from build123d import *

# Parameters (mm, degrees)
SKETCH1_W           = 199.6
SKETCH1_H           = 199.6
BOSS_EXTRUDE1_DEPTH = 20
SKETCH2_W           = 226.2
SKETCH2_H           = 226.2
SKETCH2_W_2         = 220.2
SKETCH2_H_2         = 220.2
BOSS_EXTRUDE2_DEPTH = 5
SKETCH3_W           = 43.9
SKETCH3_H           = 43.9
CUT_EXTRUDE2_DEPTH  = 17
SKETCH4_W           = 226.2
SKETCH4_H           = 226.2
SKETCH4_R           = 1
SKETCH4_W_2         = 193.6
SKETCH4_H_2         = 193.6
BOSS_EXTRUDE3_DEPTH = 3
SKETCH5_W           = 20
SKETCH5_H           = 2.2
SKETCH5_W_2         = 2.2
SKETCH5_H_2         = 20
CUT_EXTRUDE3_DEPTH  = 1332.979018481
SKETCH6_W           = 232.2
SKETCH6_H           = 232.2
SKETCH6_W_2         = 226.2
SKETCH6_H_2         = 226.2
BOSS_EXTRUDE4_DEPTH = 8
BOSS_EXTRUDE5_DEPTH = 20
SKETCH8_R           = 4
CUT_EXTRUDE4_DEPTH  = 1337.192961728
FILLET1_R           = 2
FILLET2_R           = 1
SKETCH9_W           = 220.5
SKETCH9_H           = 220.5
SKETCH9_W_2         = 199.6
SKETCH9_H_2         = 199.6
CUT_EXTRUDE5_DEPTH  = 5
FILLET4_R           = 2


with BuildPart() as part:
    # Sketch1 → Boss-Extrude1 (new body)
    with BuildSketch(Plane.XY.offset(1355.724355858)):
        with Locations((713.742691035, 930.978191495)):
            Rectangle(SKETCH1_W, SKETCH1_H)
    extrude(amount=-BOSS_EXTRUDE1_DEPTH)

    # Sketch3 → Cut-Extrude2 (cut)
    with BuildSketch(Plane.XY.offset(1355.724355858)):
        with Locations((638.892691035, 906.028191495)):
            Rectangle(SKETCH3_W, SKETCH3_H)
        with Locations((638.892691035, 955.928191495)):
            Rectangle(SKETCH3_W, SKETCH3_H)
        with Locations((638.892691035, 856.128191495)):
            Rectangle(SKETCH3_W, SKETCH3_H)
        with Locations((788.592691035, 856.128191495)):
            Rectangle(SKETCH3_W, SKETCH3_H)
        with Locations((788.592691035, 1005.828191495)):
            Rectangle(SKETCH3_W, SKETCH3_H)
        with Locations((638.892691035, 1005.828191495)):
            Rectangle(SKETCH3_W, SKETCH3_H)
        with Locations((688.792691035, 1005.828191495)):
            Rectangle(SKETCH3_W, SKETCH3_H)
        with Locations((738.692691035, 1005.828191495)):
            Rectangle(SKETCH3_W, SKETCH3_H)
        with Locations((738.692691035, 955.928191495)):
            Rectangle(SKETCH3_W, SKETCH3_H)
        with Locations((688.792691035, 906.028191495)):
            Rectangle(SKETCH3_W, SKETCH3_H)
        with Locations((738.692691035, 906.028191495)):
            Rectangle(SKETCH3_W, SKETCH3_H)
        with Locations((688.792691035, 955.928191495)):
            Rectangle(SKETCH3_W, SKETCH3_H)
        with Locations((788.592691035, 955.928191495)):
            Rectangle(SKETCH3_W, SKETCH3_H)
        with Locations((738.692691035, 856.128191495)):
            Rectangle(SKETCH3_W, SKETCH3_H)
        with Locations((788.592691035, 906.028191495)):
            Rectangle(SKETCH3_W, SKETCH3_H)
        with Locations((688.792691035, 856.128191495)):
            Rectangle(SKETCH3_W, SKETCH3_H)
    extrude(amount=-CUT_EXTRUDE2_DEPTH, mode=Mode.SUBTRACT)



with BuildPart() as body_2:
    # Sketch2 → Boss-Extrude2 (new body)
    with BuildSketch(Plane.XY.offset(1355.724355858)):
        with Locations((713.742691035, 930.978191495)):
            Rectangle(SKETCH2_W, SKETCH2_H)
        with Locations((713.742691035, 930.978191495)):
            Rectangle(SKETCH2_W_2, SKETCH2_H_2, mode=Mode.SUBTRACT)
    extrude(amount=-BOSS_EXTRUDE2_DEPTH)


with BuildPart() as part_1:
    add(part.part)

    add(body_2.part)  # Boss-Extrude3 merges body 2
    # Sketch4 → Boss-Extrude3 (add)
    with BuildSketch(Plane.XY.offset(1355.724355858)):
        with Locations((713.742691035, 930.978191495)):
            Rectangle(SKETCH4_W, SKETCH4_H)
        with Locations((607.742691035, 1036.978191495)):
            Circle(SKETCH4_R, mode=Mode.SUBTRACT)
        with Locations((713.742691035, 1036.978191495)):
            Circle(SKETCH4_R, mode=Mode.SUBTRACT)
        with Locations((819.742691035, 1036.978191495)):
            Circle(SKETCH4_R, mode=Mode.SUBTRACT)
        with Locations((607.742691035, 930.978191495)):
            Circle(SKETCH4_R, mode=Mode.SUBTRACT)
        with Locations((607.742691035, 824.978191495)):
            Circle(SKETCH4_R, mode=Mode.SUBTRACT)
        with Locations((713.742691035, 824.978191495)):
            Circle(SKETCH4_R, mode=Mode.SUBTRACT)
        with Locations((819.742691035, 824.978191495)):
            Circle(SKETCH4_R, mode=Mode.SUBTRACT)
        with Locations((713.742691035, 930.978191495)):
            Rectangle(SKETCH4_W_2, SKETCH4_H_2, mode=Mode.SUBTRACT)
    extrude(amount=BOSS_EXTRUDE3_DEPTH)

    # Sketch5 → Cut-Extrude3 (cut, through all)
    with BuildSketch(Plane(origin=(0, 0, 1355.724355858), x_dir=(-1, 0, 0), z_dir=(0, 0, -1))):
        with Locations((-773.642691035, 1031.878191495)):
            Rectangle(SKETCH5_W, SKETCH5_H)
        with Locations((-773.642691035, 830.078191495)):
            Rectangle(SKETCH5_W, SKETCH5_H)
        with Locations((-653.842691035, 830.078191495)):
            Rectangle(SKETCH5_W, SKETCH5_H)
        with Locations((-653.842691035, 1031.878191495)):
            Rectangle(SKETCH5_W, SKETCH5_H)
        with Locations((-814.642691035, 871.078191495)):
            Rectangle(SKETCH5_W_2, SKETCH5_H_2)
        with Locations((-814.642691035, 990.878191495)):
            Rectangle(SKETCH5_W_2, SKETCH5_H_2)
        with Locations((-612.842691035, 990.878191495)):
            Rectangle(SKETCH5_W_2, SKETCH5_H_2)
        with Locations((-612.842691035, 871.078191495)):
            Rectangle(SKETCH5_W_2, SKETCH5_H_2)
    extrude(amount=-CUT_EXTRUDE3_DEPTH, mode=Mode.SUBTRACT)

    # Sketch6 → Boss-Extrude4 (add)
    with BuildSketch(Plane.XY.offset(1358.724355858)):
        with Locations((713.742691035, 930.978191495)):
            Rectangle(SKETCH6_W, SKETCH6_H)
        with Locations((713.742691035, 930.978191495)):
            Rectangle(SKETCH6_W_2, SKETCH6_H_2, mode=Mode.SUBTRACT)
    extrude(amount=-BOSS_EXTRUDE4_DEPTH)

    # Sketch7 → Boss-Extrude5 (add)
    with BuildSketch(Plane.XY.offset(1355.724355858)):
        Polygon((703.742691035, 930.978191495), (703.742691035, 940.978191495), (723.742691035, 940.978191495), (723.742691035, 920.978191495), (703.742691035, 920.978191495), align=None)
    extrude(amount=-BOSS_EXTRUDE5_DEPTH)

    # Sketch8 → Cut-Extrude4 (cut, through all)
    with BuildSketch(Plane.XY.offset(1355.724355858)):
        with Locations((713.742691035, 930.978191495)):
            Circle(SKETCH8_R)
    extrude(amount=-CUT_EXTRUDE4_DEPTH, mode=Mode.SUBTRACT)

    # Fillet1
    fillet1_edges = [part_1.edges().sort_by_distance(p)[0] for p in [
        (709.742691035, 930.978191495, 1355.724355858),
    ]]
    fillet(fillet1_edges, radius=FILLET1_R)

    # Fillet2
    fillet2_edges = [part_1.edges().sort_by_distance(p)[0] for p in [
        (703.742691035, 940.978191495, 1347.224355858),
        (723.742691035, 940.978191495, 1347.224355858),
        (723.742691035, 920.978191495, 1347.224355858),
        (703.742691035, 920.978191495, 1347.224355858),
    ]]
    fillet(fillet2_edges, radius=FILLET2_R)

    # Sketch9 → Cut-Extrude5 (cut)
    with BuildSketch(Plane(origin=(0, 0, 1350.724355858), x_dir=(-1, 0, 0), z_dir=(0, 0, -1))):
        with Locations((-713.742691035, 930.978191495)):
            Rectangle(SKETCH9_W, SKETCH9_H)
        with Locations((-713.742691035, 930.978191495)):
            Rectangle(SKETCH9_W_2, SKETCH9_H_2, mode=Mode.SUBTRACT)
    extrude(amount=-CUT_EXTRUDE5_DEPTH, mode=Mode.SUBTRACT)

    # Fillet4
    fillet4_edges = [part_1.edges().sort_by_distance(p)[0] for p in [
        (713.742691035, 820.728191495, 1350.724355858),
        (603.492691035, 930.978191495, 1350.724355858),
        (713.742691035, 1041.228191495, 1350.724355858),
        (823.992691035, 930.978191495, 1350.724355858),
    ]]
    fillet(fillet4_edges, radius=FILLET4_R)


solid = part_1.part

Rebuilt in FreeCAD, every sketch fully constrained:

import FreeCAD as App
import Part
import Sketcher

V = App.Vector


def edges_at(feature, points):
    """Names of the edges that pass closest to the given points."""
    edges = feature.Shape.Edges
    near = lambda p: min(range(len(edges)), key=lambda i: edges[i].distToShape(Part.Vertex(*p))[0])
    return sorted({f"Edge{near(p) + 1}" for p in points})

doc = App.newDocument("Part")
body = doc.addObject("PartDesign::Body", "Body")

# Sketch on XY plane
sketch1 = doc.addObject("Sketcher::SketchObject", "Sketch")
body.addObject(sketch1)
sketch1.AttachmentSupport = (doc.XY_Plane, [""])
sketch1.MapMode = "FlatFace"
sketch1.AttachmentOffset = App.Placement(V(0, 0, 1355.724356), App.Rotation())
sketch1.addGeometry([
    Part.LineSegment(V(613.942691, 1030.778191, 0), V(613.942691, 831.178191, 0)),
    Part.LineSegment(V(613.942691, 831.178191, 0), V(813.542691, 831.178191, 0)),
    Part.LineSegment(V(813.542691, 831.178191, 0), V(813.542691, 1030.778191, 0)),
    Part.LineSegment(V(813.542691, 1030.778191, 0), V(613.942691, 1030.778191, 0)),
], False)
sketch1.addConstraint([
    Sketcher.Constraint("Coincident", 0, 2, 1, 1),
    Sketcher.Constraint("Coincident", 1, 2, 2, 1),
    Sketcher.Constraint("Coincident", 2, 2, 3, 1),
    Sketcher.Constraint("Coincident", 3, 2, 0, 1),
    Sketcher.Constraint("Vertical", 0),
    Sketcher.Constraint("Horizontal", 1),
    Sketcher.Constraint("Vertical", 2),
    Sketcher.Constraint("Horizontal", 3),
    Sketcher.Constraint("Equal", 3, 0),
    Sketcher.Constraint("DistanceX", 1, 1, 1, 2, 199.6),
    Sketcher.Constraint("DistanceX", -1, 1, 0, 2, 613.942691),
    Sketcher.Constraint("DistanceY", -1, 1, 0, 2, 831.178191),
])
pad1 = doc.addObject("PartDesign::Pad", "Pad")
body.addObject(pad1)
pad1.Profile = sketch1
pad1.Length = 20
pad1.Reversed = True

# Sketch on XY plane
sketch2 = doc.addObject("Sketcher::SketchObject", "Sketch001")
body.addObject(sketch2)
sketch2.AttachmentSupport = (doc.XY_Plane, [""])
sketch2.MapMode = "FlatFace"
sketch2.AttachmentOffset = App.Placement(V(0, 0, 1355.724356), App.Rotation())
sketch2.addGeometry([
    Part.LineSegment(V(616.942691, 927.978191, 0), V(616.942691, 884.078191, 0)),  # 0
    Part.LineSegment(V(616.942691, 884.078191, 0), V(660.842691, 884.078191, 0)),  # 1
    Part.LineSegment(V(660.842691, 884.078191, 0), V(660.842691, 927.978191, 0)),  # 2
    Part.LineSegment(V(660.842691, 927.978191, 0), V(616.942691, 927.978191, 0)),  # 3
    Part.LineSegment(V(616.942691, 977.878191, 0), V(616.942691, 933.978191, 0)),  # 4
    Part.LineSegment(V(616.942691, 933.978191, 0), V(660.842691, 933.978191, 0)),  # 5
    Part.LineSegment(V(660.842691, 933.978191, 0), V(660.842691, 977.878191, 0)),  # 6
    Part.LineSegment(V(660.842691, 977.878191, 0), V(616.942691, 977.878191, 0)),  # 7
    Part.LineSegment(V(616.942691, 878.078191, 0), V(616.942691, 834.178191, 0)),  # 8
    Part.LineSegment(V(616.942691, 834.178191, 0), V(660.842691, 834.178191, 0)),  # 9
    Part.LineSegment(V(660.842691, 834.178191, 0), V(660.842691, 878.078191, 0)),  # 10
    Part.LineSegment(V(660.842691, 878.078191, 0), V(616.942691, 878.078191, 0)),  # 11
    Part.LineSegment(V(766.642691, 878.078191, 0), V(766.642691, 834.178191, 0)),  # 12
    Part.LineSegment(V(766.642691, 834.178191, 0), V(810.542691, 834.178191, 0)),  # 13
    Part.LineSegment(V(810.542691, 834.178191, 0), V(810.542691, 878.078191, 0)),  # 14
    Part.LineSegment(V(810.542691, 878.078191, 0), V(766.642691, 878.078191, 0)),  # 15
    Part.LineSegment(V(766.642691, 1027.778191, 0), V(766.642691, 983.878191, 0)),  # 16
    Part.LineSegment(V(766.642691, 983.878191, 0), V(810.542691, 983.878191, 0)),  # 17
    Part.LineSegment(V(810.542691, 983.878191, 0), V(810.542691, 1027.778191, 0)),  # 18
    Part.LineSegment(V(810.542691, 1027.778191, 0), V(766.642691, 1027.778191, 0)),  # 19
    Part.LineSegment(V(616.942691, 1027.778191, 0), V(616.942691, 983.878191, 0)),  # 20
    Part.LineSegment(V(616.942691, 983.878191, 0), V(660.842691, 983.878191, 0)),  # 21
    Part.LineSegment(V(660.842691, 983.878191, 0), V(660.842691, 1027.778191, 0)),  # 22
    Part.LineSegment(V(660.842691, 1027.778191, 0), V(616.942691, 1027.778191, 0)),  # 23
    Part.LineSegment(V(666.842691, 1027.778191, 0), V(666.842691, 983.878191, 0)),  # 24
    Part.LineSegment(V(666.842691, 983.878191, 0), V(710.742691, 983.878191, 0)),  # 25
    Part.LineSegment(V(710.742691, 983.878191, 0), V(710.742691, 1027.778191, 0)),  # 26
    Part.LineSegment(V(710.742691, 1027.778191, 0), V(666.842691, 1027.778191, 0)),  # 27
    Part.LineSegment(V(716.742691, 1027.778191, 0), V(716.742691, 983.878191, 0)),  # 28
    Part.LineSegment(V(716.742691, 983.878191, 0), V(760.642691, 983.878191, 0)),  # 29
    Part.LineSegment(V(760.642691, 983.878191, 0), V(760.642691, 1027.778191, 0)),  # 30
    Part.LineSegment(V(760.642691, 1027.778191, 0), V(716.742691, 1027.778191, 0)),  # 31
    Part.LineSegment(V(716.742691, 977.878191, 0), V(716.742691, 933.978191, 0)),  # 32
    Part.LineSegment(V(716.742691, 933.978191, 0), V(760.642691, 933.978191, 0)),  # 33
    Part.LineSegment(V(760.642691, 933.978191, 0), V(760.642691, 977.878191, 0)),  # 34
    Part.LineSegment(V(760.642691, 977.878191, 0), V(716.742691, 977.878191, 0)),  # 35
    Part.LineSegment(V(666.842691, 927.978191, 0), V(666.842691, 884.078191, 0)),  # 36
    Part.LineSegment(V(666.842691, 884.078191, 0), V(710.742691, 884.078191, 0)),  # 37
    Part.LineSegment(V(710.742691, 884.078191, 0), V(710.742691, 927.978191, 0)),  # 38
    Part.LineSegment(V(710.742691, 927.978191, 0), V(666.842691, 927.978191, 0)),  # 39
    Part.LineSegment(V(716.742691, 927.978191, 0), V(716.742691, 884.078191, 0)),  # 40
    Part.LineSegment(V(716.742691, 884.078191, 0), V(760.642691, 884.078191, 0)),  # 41
    Part.LineSegment(V(760.642691, 884.078191, 0), V(760.642691, 927.978191, 0)),  # 42
    Part.LineSegment(V(760.642691, 927.978191, 0), V(716.742691, 927.978191, 0)),  # 43
    Part.LineSegment(V(666.842691, 977.878191, 0), V(666.842691, 933.978191, 0)),  # 44
    Part.LineSegment(V(666.842691, 933.978191, 0), V(710.742691, 933.978191, 0)),  # 45
    Part.LineSegment(V(710.742691, 933.978191, 0), V(710.742691, 977.878191, 0)),  # 46
    Part.LineSegment(V(710.742691, 977.878191, 0), V(666.842691, 977.878191, 0)),  # 47
    Part.LineSegment(V(766.642691, 977.878191, 0), V(766.642691, 933.978191, 0)),  # 48
    Part.LineSegment(V(766.642691, 933.978191, 0), V(810.542691, 933.978191, 0)),  # 49
    Part.LineSegment(V(810.542691, 933.978191, 0), V(810.542691, 977.878191, 0)),  # 50
    Part.LineSegment(V(810.542691, 977.878191, 0), V(766.642691, 977.878191, 0)),  # 51
    Part.LineSegment(V(716.742691, 878.078191, 0), V(716.742691, 834.178191, 0)),  # 52
    Part.LineSegment(V(716.742691, 834.178191, 0), V(760.642691, 834.178191, 0)),  # 53
    Part.LineSegment(V(760.642691, 834.178191, 0), V(760.642691, 878.078191, 0)),  # 54
    Part.LineSegment(V(760.642691, 878.078191, 0), V(716.742691, 878.078191, 0)),  # 55
    Part.LineSegment(V(766.642691, 927.978191, 0), V(766.642691, 884.078191, 0)),  # 56
    Part.LineSegment(V(766.642691, 884.078191, 0), V(810.542691, 884.078191, 0)),  # 57
    Part.LineSegment(V(810.542691, 884.078191, 0), V(810.542691, 927.978191, 0)),  # 58
    Part.LineSegment(V(810.542691, 927.978191, 0), V(766.642691, 927.978191, 0)),  # 59
    Part.LineSegment(V(666.842691, 878.078191, 0), V(666.842691, 834.178191, 0)),  # 60
    Part.LineSegment(V(666.842691, 834.178191, 0), V(710.742691, 834.178191, 0)),  # 61
    Part.LineSegment(V(710.742691, 834.178191, 0), V(710.742691, 878.078191, 0)),  # 62
    Part.LineSegment(V(710.742691, 878.078191, 0), V(666.842691, 878.078191, 0)),  # 63
], False)
sketch2.addConstraint([
    Sketcher.Constraint("Coincident", 0, 2, 1, 1),
    Sketcher.Constraint("Coincident", 1, 2, 2, 1),
    Sketcher.Constraint("Coincident", 2, 2, 3, 1),
    Sketcher.Constraint("Coincident", 3, 2, 0, 1),
    Sketcher.Constraint("Coincident", 4, 2, 5, 1),
    Sketcher.Constraint("Coincident", 5, 2, 6, 1),
    Sketcher.Constraint("Coincident", 6, 2, 7, 1),
    Sketcher.Constraint("Coincident", 7, 2, 4, 1),
    Sketcher.Constraint("Coincident", 8, 2, 9, 1),
    Sketcher.Constraint("Coincident", 9, 2, 10, 1),
    Sketcher.Constraint("Coincident", 10, 2, 11, 1),
    Sketcher.Constraint("Coincident", 11, 2, 8, 1),
    Sketcher.Constraint("Coincident", 12, 2, 13, 1),
    Sketcher.Constraint("Coincident", 13, 2, 14, 1),
    Sketcher.Constraint("Coincident", 14, 2, 15, 1),
    Sketcher.Constraint("Coincident", 15, 2, 12, 1),
    Sketcher.Constraint("Coincident", 16, 2, 17, 1),
    Sketcher.Constraint("Coincident", 17, 2, 18, 1),
    Sketcher.Constraint("Coincident", 18, 2, 19, 1),
    Sketcher.Constraint("Coincident", 19, 2, 16, 1),
    Sketcher.Constraint("Coincident", 20, 2, 21, 1),
    Sketcher.Constraint("Coincident", 21, 2, 22, 1),
    Sketcher.Constraint("Coincident", 22, 2, 23, 1),
    Sketcher.Constraint("Coincident", 23, 2, 20, 1),
    Sketcher.Constraint("Coincident", 24, 2, 25, 1),
    Sketcher.Constraint("Coincident", 25, 2, 26, 1),
    Sketcher.Constraint("Coincident", 26, 2, 27, 1),
    Sketcher.Constraint("Coincident", 27, 2, 24, 1),
    Sketcher.Constraint("Coincident", 28, 2, 29, 1),
    Sketcher.Constraint("Coincident", 29, 2, 30, 1),
    Sketcher.Constraint("Coincident", 30, 2, 31, 1),
    Sketcher.Constraint("Coincident", 31, 2, 28, 1),
    Sketcher.Constraint("Coincident", 32, 2, 33, 1),
    Sketcher.Constraint("Coincident", 33, 2, 34, 1),
    Sketcher.Constraint("Coincident", 34, 2, 35, 1),
    Sketcher.Constraint("Coincident", 35, 2, 32, 1),
    Sketcher.Constraint("Coincident", 36, 2, 37, 1),
    Sketcher.Constraint("Coincident", 37, 2, 38, 1),
    Sketcher.Constraint("Coincident", 38, 2, 39, 1),
    Sketcher.Constraint("Coincident", 39, 2, 36, 1),
    Sketcher.Constraint("Coincident", 40, 2, 41, 1),
    Sketcher.Constraint("Coincident", 41, 2, 42, 1),
    Sketcher.Constraint("Coincident", 42, 2, 43, 1),
    Sketcher.Constraint("Coincident", 43, 2, 40, 1),
    Sketcher.Constraint("Coincident", 44, 2, 45, 1),
    Sketcher.Constraint("Coincident", 45, 2, 46, 1),
    Sketcher.Constraint("Coincident", 46, 2, 47, 1),
    Sketcher.Constraint("Coincident", 47, 2, 44, 1),
    Sketcher.Constraint("Coincident", 48, 2, 49, 1),
    Sketcher.Constraint("Coincident", 49, 2, 50, 1),
    Sketcher.Constraint("Coincident", 50, 2, 51, 1),
    Sketcher.Constraint("Coincident", 51, 2, 48, 1),
    Sketcher.Constraint("Coincident", 52, 2, 53, 1),
    Sketcher.Constraint("Coincident", 53, 2, 54, 1),
    Sketcher.Constraint("Coincident", 54, 2, 55, 1),
    Sketcher.Constraint("Coincident", 55, 2, 52, 1),
    Sketcher.Constraint("Coincident", 56, 2, 57, 1),
    Sketcher.Constraint("Coincident", 57, 2, 58, 1),
    Sketcher.Constraint("Coincident", 58, 2, 59, 1),
    Sketcher.Constraint("Coincident", 59, 2, 56, 1),
    Sketcher.Constraint("Coincident", 60, 2, 61, 1),
    Sketcher.Constraint("Coincident", 61, 2, 62, 1),
    Sketcher.Constraint("Coincident", 62, 2, 63, 1),
    Sketcher.Constraint("Coincident", 63, 2, 60, 1),
    Sketcher.Constraint("Vertical", 0),
    Sketcher.Constraint("Horizontal", 1),
    Sketcher.Constraint("Vertical", 2),
    Sketcher.Constraint("Horizontal", 3),
    Sketcher.Constraint("Vertical", 4),
    Sketcher.Constraint("Horizontal", 5),
    Sketcher.Constraint("Vertical", 6),
    Sketcher.Constraint("Horizontal", 7),
    Sketcher.Constraint("Vertical", 8),
    Sketcher.Constraint("Horizontal", 9),
    Sketcher.Constraint("Vertical", 10),
    Sketcher.Constraint("Horizontal", 11),
    Sketcher.Constraint("Vertical", 12),
    Sketcher.Constraint("Horizontal", 13),
    Sketcher.Constraint("Vertical", 14),
    Sketcher.Constraint("Horizontal", 15),
    Sketcher.Constraint("Vertical", 16),
    Sketcher.Constraint("Horizontal", 17),
    Sketcher.Constraint("Vertical", 18),
    Sketcher.Constraint("Horizontal", 19),
    Sketcher.Constraint("Vertical", 20),
    Sketcher.Constraint("Horizontal", 21),
    Sketcher.Constraint("Vertical", 22),
    Sketcher.Constraint("Horizontal", 23),
    Sketcher.Constraint("Vertical", 24),
    Sketcher.Constraint("Horizontal", 25),
    Sketcher.Constraint("Vertical", 26),
    Sketcher.Constraint("Horizontal", 27),
    Sketcher.Constraint("Vertical", 28),
    Sketcher.Constraint("Horizontal", 29),
    Sketcher.Constraint("Vertical", 30),
    Sketcher.Constraint("Horizontal", 31),
    Sketcher.Constraint("Vertical", 32),
    Sketcher.Constraint("Horizontal", 33),
    Sketcher.Constraint("Vertical", 34),
    Sketcher.Constraint("Horizontal", 35),
    Sketcher.Constraint("Vertical", 36),
    Sketcher.Constraint("Horizontal", 37),
    Sketcher.Constraint("Vertical", 38),
    Sketcher.Constraint("Horizontal", 39),
    Sketcher.Constraint("Vertical", 40),
    Sketcher.Constraint("Horizontal", 41),
    Sketcher.Constraint("Vertical", 42),
    Sketcher.Constraint("Horizontal", 43),
    Sketcher.Constraint("Vertical", 44),
    Sketcher.Constraint("Horizontal", 45),
    Sketcher.Constraint("Vertical", 46),
    Sketcher.Constraint("Horizontal", 47),
    Sketcher.Constraint("Vertical", 48),
    Sketcher.Constraint("Horizontal", 49),
    Sketcher.Constraint("Vertical", 50),
    Sketcher.Constraint("Horizontal", 51),
    Sketcher.Constraint("Vertical", 52),
    Sketcher.Constraint("Horizontal", 53),
    Sketcher.Constraint("Vertical", 54),
    Sketcher.Constraint("Horizontal", 55),
    Sketcher.Constraint("Vertical", 56),
    Sketcher.Constraint("Horizontal", 57),
    Sketcher.Constraint("Vertical", 58),
    Sketcher.Constraint("Horizontal", 59),
    Sketcher.Constraint("Vertical", 60),
    Sketcher.Constraint("Horizontal", 61),
    Sketcher.Constraint("Vertical", 62),
    Sketcher.Constraint("Horizontal", 63),
    Sketcher.Constraint("Horizontal", 9, 2, 12, 2),
    Sketcher.Constraint("Horizontal", 11, 2, 14, 2),
    Sketcher.Constraint("Horizontal", 17, 2, 20, 2),
    Sketcher.Constraint("Horizontal", 19, 2, 22, 2),
    Sketcher.Constraint("Horizontal", 21, 2, 24, 2),
    Sketcher.Constraint("Horizontal", 23, 2, 26, 2),
    Sketcher.Constraint("Horizontal", 25, 2, 28, 2),
    Sketcher.Constraint("Horizontal", 27, 2, 30, 2),
    Sketcher.Constraint("Horizontal", 5, 2, 32, 2),
    Sketcher.Constraint("Horizontal", 7, 2, 34, 2),
    Sketcher.Constraint("Horizontal", 1, 2, 36, 2),
    Sketcher.Constraint("Horizontal", 3, 2, 38, 2),
    Sketcher.Constraint("Horizontal", 37, 2, 40, 2),
    Sketcher.Constraint("Horizontal", 39, 2, 42, 2),
    Sketcher.Constraint("Horizontal", 33, 2, 44, 2),
    Sketcher.Constraint("Horizontal", 35, 2, 46, 2),
    Sketcher.Constraint("Horizontal", 45, 2, 48, 2),
    Sketcher.Constraint("Horizontal", 47, 2, 50, 2),
    Sketcher.Constraint("Horizontal", 13, 2, 52, 2),
    Sketcher.Constraint("Horizontal", 15, 2, 54, 2),
    Sketcher.Constraint("Horizontal", 41, 2, 56, 2),
    Sketcher.Constraint("Horizontal", 43, 2, 58, 2),
    Sketcher.Constraint("Horizontal", 53, 2, 60, 2),
    Sketcher.Constraint("Horizontal", 55, 2, 62, 2),
    Sketcher.Constraint("Vertical", 3, 2, 4, 2),
    Sketcher.Constraint("Vertical", 2, 2, 5, 2),
    Sketcher.Constraint("Vertical", 7, 2, 8, 2),
    Sketcher.Constraint("Vertical", 6, 2, 9, 2),
    Sketcher.Constraint("Vertical", 15, 2, 16, 2),
    Sketcher.Constraint("Vertical", 14, 2, 17, 2),
    Sketcher.Constraint("Vertical", 11, 2, 20, 2),
    Sketcher.Constraint("Vertical", 10, 2, 21, 2),
    Sketcher.Constraint("Vertical", 31, 2, 32, 2),
    Sketcher.Constraint("Vertical", 30, 2, 33, 2),
    Sketcher.Constraint("Vertical", 27, 2, 36, 2),
    Sketcher.Constraint("Vertical", 26, 2, 37, 2),
    Sketcher.Constraint("Vertical", 35, 2, 40, 2),
    Sketcher.Constraint("Vertical", 34, 2, 41, 2),
    Sketcher.Constraint("Vertical", 39, 2, 44, 2),
    Sketcher.Constraint("Vertical", 38, 2, 45, 2),
    Sketcher.Constraint("Vertical", 19, 2, 48, 2),
    Sketcher.Constraint("Vertical", 18, 2, 49, 2),
    Sketcher.Constraint("Vertical", 43, 2, 52, 2),
    Sketcher.Constraint("Vertical", 42, 2, 53, 2),
    Sketcher.Constraint("Vertical", 51, 2, 56, 2),
    Sketcher.Constraint("Vertical", 50, 2, 57, 2),
    Sketcher.Constraint("Vertical", 47, 2, 60, 2),
    Sketcher.Constraint("Vertical", 46, 2, 61, 2),
    Sketcher.Constraint("Equal", 11, 13),
    Sketcher.Constraint("Equal", 23, 25),
    Sketcher.Constraint("Equal", 27, 29),
    Sketcher.Constraint("Equal", 63, 0),
    Sketcher.Constraint("Equal", 2, 4),
    Sketcher.Constraint("Equal", 6, 8),
    Sketcher.Constraint("Equal", 14, 16),
    Sketcher.Constraint("DistanceX", 1, 1, 1, 2, 43.9),
    Sketcher.Constraint("DistanceX", -1, 1, 0, 2, 616.942691),
    Sketcher.Constraint("DistanceY", -1, 1, 0, 2, 884.078191),
    Sketcher.Constraint("DistanceY", -1, 1, 4, 2, 933.978191),
    Sketcher.Constraint("DistanceY", -1, 1, 8, 2, 834.178191),
    Sketcher.Constraint("DistanceX", -1, 1, 12, 2, 766.642691),
    Sketcher.Constraint("DistanceY", -1, 1, 16, 2, 983.878191),
    Sketcher.Constraint("DistanceX", -1, 1, 24, 2, 666.842691),
    Sketcher.Constraint("DistanceX", -1, 1, 28, 2, 716.742691),
])
pocket1 = doc.addObject("PartDesign::Pocket", "Pocket")
body.addObject(pocket1)
pocket1.Profile = sketch2
pocket1.Length = 17
body2 = doc.addObject("PartDesign::Body", "Body001")

# Sketch on XY plane
sketch3 = doc.addObject("Sketcher::SketchObject", "Sketch002")
body2.addObject(sketch3)
sketch3.AttachmentSupport = (doc.getObject("XY_Plane001"), [""])
sketch3.MapMode = "FlatFace"
sketch3.AttachmentOffset = App.Placement(V(0, 0, 1355.724356), App.Rotation())
sketch3.addGeometry([
    Part.LineSegment(V(600.642691, 1044.078191, 0), V(600.642691, 817.878191, 0)),  # 0
    Part.LineSegment(V(600.642691, 817.878191, 0), V(826.842691, 817.878191, 0)),  # 1
    Part.LineSegment(V(826.842691, 817.878191, 0), V(826.842691, 1044.078191, 0)),  # 2
    Part.LineSegment(V(826.842691, 1044.078191, 0), V(600.642691, 1044.078191, 0)),  # 3
    Part.LineSegment(V(823.842691, 820.878191, 0), V(603.642691, 820.878191, 0)),  # 4
    Part.LineSegment(V(603.642691, 820.878191, 0), V(603.642691, 1041.078191, 0)),  # 5
    Part.LineSegment(V(603.642691, 1041.078191, 0), V(823.842691, 1041.078191, 0)),  # 6
    Part.LineSegment(V(823.842691, 1041.078191, 0), V(823.842691, 820.878191, 0)),  # 7
], False)
sketch3.addConstraint([
    Sketcher.Constraint("Coincident", 0, 2, 1, 1),
    Sketcher.Constraint("Coincident", 1, 2, 2, 1),
    Sketcher.Constraint("Coincident", 2, 2, 3, 1),
    Sketcher.Constraint("Coincident", 3, 2, 0, 1),
    Sketcher.Constraint("Coincident", 4, 2, 5, 1),
    Sketcher.Constraint("Coincident", 5, 2, 6, 1),
    Sketcher.Constraint("Coincident", 6, 2, 7, 1),
    Sketcher.Constraint("Coincident", 7, 2, 4, 1),
    Sketcher.Constraint("Vertical", 0),
    Sketcher.Constraint("Horizontal", 1),
    Sketcher.Constraint("Vertical", 2),
    Sketcher.Constraint("Horizontal", 3),
    Sketcher.Constraint("Horizontal", 4),
    Sketcher.Constraint("Vertical", 5),
    Sketcher.Constraint("Horizontal", 6),
    Sketcher.Constraint("Vertical", 7),
    Sketcher.Constraint("Equal", 3, 0),
    Sketcher.Constraint("Equal", 6, 5),
    Sketcher.Constraint("DistanceX", 1, 1, 1, 2, 226.2),
    Sketcher.Constraint("DistanceX", 4, 2, 4, 1, 220.2),
    Sketcher.Constraint("DistanceX", 0, 2, 4, 2, 3.0),
    Sketcher.Constraint("DistanceY", 0, 2, 4, 2, 3.0),
    Sketcher.Constraint("DistanceX", -1, 1, 0, 2, 600.642691),
    Sketcher.Constraint("DistanceY", -1, 1, 0, 2, 817.878191),
])
pad2 = doc.addObject("PartDesign::Pad", "Pad001")
body2.addObject(pad2)
pad2.Profile = sketch3
pad2.Length = 5
pad2.Reversed = True
body.AllowCompound = True
doc.recompute()

boolean = doc.addObject("PartDesign::Boolean", "Boolean")
body.addObject(boolean)
boolean.Type = "Fuse"
boolean.addObjects([body2])

# Sketch on XY plane
sketch4 = doc.addObject("Sketcher::SketchObject", "Sketch003")
body.addObject(sketch4)
sketch4.AttachmentSupport = (doc.XY_Plane, [""])
sketch4.MapMode = "FlatFace"
sketch4.AttachmentOffset = App.Placement(V(0, 0, 1355.724356), App.Rotation())
sketch4.addGeometry([
    Part.LineSegment(V(600.642691, 1044.078191, 0), V(600.642691, 817.878191, 0)),  # 0
    Part.LineSegment(V(600.642691, 817.878191, 0), V(826.842691, 817.878191, 0)),  # 1
    Part.LineSegment(V(826.842691, 817.878191, 0), V(826.842691, 1044.078191, 0)),  # 2
    Part.LineSegment(V(826.842691, 1044.078191, 0), V(600.642691, 1044.078191, 0)),  # 3
    Part.Circle(V(607.742691, 824.978191, 0), V(0, 0, 1), 1),  # 4
    Part.Circle(V(713.742691, 824.978191, 0), V(0, 0, 1), 1),  # 5
    Part.Circle(V(819.742691, 824.978191, 0), V(0, 0, 1), 1),  # 6
    Part.Circle(V(607.742691, 930.978191, 0), V(0, 0, 1), 1),  # 7
    Part.LineSegment(V(810.542691, 834.178191, 0), V(616.942691, 834.178191, 0)),  # 8
    Part.LineSegment(V(616.942691, 834.178191, 0), V(616.942691, 1027.778191, 0)),  # 9
    Part.LineSegment(V(616.942691, 1027.778191, 0), V(810.542691, 1027.778191, 0)),  # 10
    Part.LineSegment(V(810.542691, 1027.778191, 0), V(810.542691, 834.178191, 0)),  # 11
    Part.Circle(V(607.742691, 1036.978191, 0), V(0, 0, 1), 1),  # 12
    Part.Circle(V(713.742691, 1036.978191, 0), V(0, 0, 1), 1),  # 13
    Part.Circle(V(819.742691, 1036.978191, 0), V(0, 0, 1), 1),  # 14
], False)
sketch4.addConstraint([
    Sketcher.Constraint("Coincident", 0, 2, 1, 1),
    Sketcher.Constraint("Coincident", 1, 2, 2, 1),
    Sketcher.Constraint("Coincident", 2, 2, 3, 1),
    Sketcher.Constraint("Coincident", 3, 2, 0, 1),
    Sketcher.Constraint("Coincident", 8, 2, 9, 1),
    Sketcher.Constraint("Coincident", 9, 2, 10, 1),
    Sketcher.Constraint("Coincident", 10, 2, 11, 1),
    Sketcher.Constraint("Coincident", 11, 2, 8, 1),
    Sketcher.Constraint("Vertical", 0),
    Sketcher.Constraint("Horizontal", 1),
    Sketcher.Constraint("Vertical", 2),
    Sketcher.Constraint("Horizontal", 3),
    Sketcher.Constraint("Horizontal", 8),
    Sketcher.Constraint("Vertical", 9),
    Sketcher.Constraint("Horizontal", 10),
    Sketcher.Constraint("Vertical", 11),
    Sketcher.Constraint("Equal", 4, 5),
    Sketcher.Constraint("Equal", 5, 6),
    Sketcher.Constraint("Equal", 6, 7),
    Sketcher.Constraint("Equal", 7, 12),
    Sketcher.Constraint("Equal", 12, 13),
    Sketcher.Constraint("Equal", 13, 14),
    Sketcher.Constraint("Horizontal", 4, 3, 5, 3),
    Sketcher.Constraint("Horizontal", 5, 3, 6, 3),
    Sketcher.Constraint("Horizontal", 12, 3, 13, 3),
    Sketcher.Constraint("Horizontal", 13, 3, 14, 3),
    Sketcher.Constraint("Vertical", 4, 3, 7, 3),
    Sketcher.Constraint("Vertical", 7, 3, 12, 3),
    Sketcher.Constraint("Vertical", 5, 3, 13, 3),
    Sketcher.Constraint("Vertical", 6, 3, 14, 3),
    Sketcher.Constraint("Equal", 3, 0),
    Sketcher.Constraint("Equal", 10, 9),
    Sketcher.Constraint("Diameter", 4, 2.0),
    Sketcher.Constraint("DistanceX", 1, 1, 1, 2, 226.2),
    Sketcher.Constraint("DistanceX", 8, 2, 8, 1, 193.6),
    Sketcher.Constraint("DistanceX", 4, 3, 5, 3, 106.0),
    Sketcher.Constraint("DistanceX", 5, 3, 6, 3, 106.0),
    Sketcher.Constraint("DistanceY", 4, 3, 7, 3, 106.0),
    Sketcher.Constraint("DistanceY", 7, 3, 12, 3, 106.0),
    Sketcher.Constraint("DistanceX", 0, 2, 4, 3, 7.1),
    Sketcher.Constraint("DistanceY", 0, 2, 4, 3, 7.1),
    Sketcher.Constraint("DistanceX", 4, 3, 8, 2, 9.2),
    Sketcher.Constraint("DistanceY", 4, 3, 8, 2, 9.2),
    Sketcher.Constraint("DistanceX", -1, 1, 4, 3, 607.742691),
    Sketcher.Constraint("DistanceY", -1, 1, 4, 3, 824.978191),
])
pad3 = doc.addObject("PartDesign::Pad", "Pad002")
body.addObject(pad3)
pad3.Profile = sketch4
pad3.Length = 3

# Sketch on XY plane
sketch5 = doc.addObject("Sketcher::SketchObject", "Sketch004")
body.addObject(sketch5)
sketch5.AttachmentSupport = (doc.XY_Plane, [""])
sketch5.MapMode = "FlatFace"
sketch5.AttachmentOffset = App.Placement(V(0, 0, 1355.724356), App.Rotation())
sketch5.addGeometry([
    Part.LineSegment(V(783.642691, 1032.978191, 0), V(783.642691, 1030.778191, 0)),  # 0
    Part.LineSegment(V(783.642691, 1030.778191, 0), V(763.642691, 1030.778191, 0)),  # 1
    Part.LineSegment(V(763.642691, 1030.778191, 0), V(763.642691, 1032.978191, 0)),  # 2
    Part.LineSegment(V(763.642691, 1032.978191, 0), V(783.642691, 1032.978191, 0)),  # 3
    Part.LineSegment(V(783.642691, 831.178191, 0), V(783.642691, 828.978191, 0)),  # 4
    Part.LineSegment(V(783.642691, 828.978191, 0), V(763.642691, 828.978191, 0)),  # 5
    Part.LineSegment(V(763.642691, 828.978191, 0), V(763.642691, 831.178191, 0)),  # 6
    Part.LineSegment(V(763.642691, 831.178191, 0), V(783.642691, 831.178191, 0)),  # 7
    Part.LineSegment(V(663.842691, 831.178191, 0), V(663.842691, 828.978191, 0)),  # 8
    Part.LineSegment(V(663.842691, 828.978191, 0), V(643.842691, 828.978191, 0)),  # 9
    Part.LineSegment(V(643.842691, 828.978191, 0), V(643.842691, 831.178191, 0)),  # 10
    Part.LineSegment(V(643.842691, 831.178191, 0), V(663.842691, 831.178191, 0)),  # 11
    Part.LineSegment(V(663.842691, 1032.978191, 0), V(663.842691, 1030.778191, 0)),  # 12
    Part.LineSegment(V(663.842691, 1030.778191, 0), V(643.842691, 1030.778191, 0)),  # 13
    Part.LineSegment(V(643.842691, 1030.778191, 0), V(643.842691, 1032.978191, 0)),  # 14
    Part.LineSegment(V(643.842691, 1032.978191, 0), V(663.842691, 1032.978191, 0)),  # 15
    Part.LineSegment(V(815.742691, 881.078191, 0), V(815.742691, 861.078191, 0)),  # 16
    Part.LineSegment(V(815.742691, 861.078191, 0), V(813.542691, 861.078191, 0)),  # 17
    Part.LineSegment(V(813.542691, 861.078191, 0), V(813.542691, 881.078191, 0)),  # 18
    Part.LineSegment(V(813.542691, 881.078191, 0), V(815.742691, 881.078191, 0)),  # 19
    Part.LineSegment(V(815.742691, 1000.878191, 0), V(815.742691, 980.878191, 0)),  # 20
    Part.LineSegment(V(815.742691, 980.878191, 0), V(813.542691, 980.878191, 0)),  # 21
    Part.LineSegment(V(813.542691, 980.878191, 0), V(813.542691, 1000.878191, 0)),  # 22
    Part.LineSegment(V(813.542691, 1000.878191, 0), V(815.742691, 1000.878191, 0)),  # 23
    Part.LineSegment(V(613.942691, 1000.878191, 0), V(613.942691, 980.878191, 0)),  # 24
    Part.LineSegment(V(613.942691, 980.878191, 0), V(611.742691, 980.878191, 0)),  # 25
    Part.LineSegment(V(611.742691, 980.878191, 0), V(611.742691, 1000.878191, 0)),  # 26
    Part.LineSegment(V(611.742691, 1000.878191, 0), V(613.942691, 1000.878191, 0)),  # 27
    Part.LineSegment(V(613.942691, 881.078191, 0), V(613.942691, 861.078191, 0)),  # 28
    Part.LineSegment(V(613.942691, 861.078191, 0), V(611.742691, 861.078191, 0)),  # 29
    Part.LineSegment(V(611.742691, 861.078191, 0), V(611.742691, 881.078191, 0)),  # 30
    Part.LineSegment(V(611.742691, 881.078191, 0), V(613.942691, 881.078191, 0)),  # 31
], False)
sketch5.addConstraint([
    Sketcher.Constraint("Coincident", 0, 2, 1, 1),
    Sketcher.Constraint("Coincident", 1, 2, 2, 1),
    Sketcher.Constraint("Coincident", 2, 2, 3, 1),
    Sketcher.Constraint("Coincident", 3, 2, 0, 1),
    Sketcher.Constraint("Coincident", 4, 2, 5, 1),
    Sketcher.Constraint("Coincident", 5, 2, 6, 1),
    Sketcher.Constraint("Coincident", 6, 2, 7, 1),
    Sketcher.Constraint("Coincident", 7, 2, 4, 1),
    Sketcher.Constraint("Coincident", 8, 2, 9, 1),
    Sketcher.Constraint("Coincident", 9, 2, 10, 1),
    Sketcher.Constraint("Coincident", 10, 2, 11, 1),
    Sketcher.Constraint("Coincident", 11, 2, 8, 1),
    Sketcher.Constraint("Coincident", 12, 2, 13, 1),
    Sketcher.Constraint("Coincident", 13, 2, 14, 1),
    Sketcher.Constraint("Coincident", 14, 2, 15, 1),
    Sketcher.Constraint("Coincident", 15, 2, 12, 1),
    Sketcher.Constraint("Coincident", 16, 2, 17, 1),
    Sketcher.Constraint("Coincident", 17, 2, 18, 1),
    Sketcher.Constraint("Coincident", 18, 2, 19, 1),
    Sketcher.Constraint("Coincident", 19, 2, 16, 1),
    Sketcher.Constraint("Coincident", 20, 2, 21, 1),
    Sketcher.Constraint("Coincident", 21, 2, 22, 1),
    Sketcher.Constraint("Coincident", 22, 2, 23, 1),
    Sketcher.Constraint("Coincident", 23, 2, 20, 1),
    Sketcher.Constraint("Coincident", 24, 2, 25, 1),
    Sketcher.Constraint("Coincident", 25, 2, 26, 1),
    Sketcher.Constraint("Coincident", 26, 2, 27, 1),
    Sketcher.Constraint("Coincident", 27, 2, 24, 1),
    Sketcher.Constraint("Coincident", 28, 2, 29, 1),
    Sketcher.Constraint("Coincident", 29, 2, 30, 1),
    Sketcher.Constraint("Coincident", 30, 2, 31, 1),
    Sketcher.Constraint("Coincident", 31, 2, 28, 1),
    Sketcher.Constraint("Vertical", 0),
    Sketcher.Constraint("Horizontal", 1),
    Sketcher.Constraint("Vertical", 2),
    Sketcher.Constraint("Horizontal", 3),
    Sketcher.Constraint("Vertical", 4),
    Sketcher.Constraint("Horizontal", 5),
    Sketcher.Constraint("Vertical", 6),
    Sketcher.Constraint("Horizontal", 7),
    Sketcher.Constraint("Vertical", 8),
    Sketcher.Constraint("Horizontal", 9),
    Sketcher.Constraint("Vertical", 10),
    Sketcher.Constraint("Horizontal", 11),
    Sketcher.Constraint("Vertical", 12),
    Sketcher.Constraint("Horizontal", 13),
    Sketcher.Constraint("Vertical", 14),
    Sketcher.Constraint("Horizontal", 15),
    Sketcher.Constraint("Vertical", 16),
    Sketcher.Constraint("Horizontal", 17),
    Sketcher.Constraint("Vertical", 18),
    Sketcher.Constraint("Horizontal", 19),
    Sketcher.Constraint("Vertical", 20),
    Sketcher.Constraint("Horizontal", 21),
    Sketcher.Constraint("Vertical", 22),
    Sketcher.Constraint("Horizontal", 23),
    Sketcher.Constraint("Vertical", 24),
    Sketcher.Constraint("Horizontal", 25),
    Sketcher.Constraint("Vertical", 26),
    Sketcher.Constraint("Horizontal", 27),
    Sketcher.Constraint("Vertical", 28),
    Sketcher.Constraint("Horizontal", 29),
    Sketcher.Constraint("Vertical", 30),
    Sketcher.Constraint("Horizontal", 31),
    Sketcher.Constraint("Horizontal", 5, 2, 8, 2),
    Sketcher.Constraint("Horizontal", 7, 2, 10, 2),
    Sketcher.Constraint("Horizontal", 1, 2, 12, 2),
    Sketcher.Constraint("Horizontal", 3, 2, 14, 2),
    Sketcher.Constraint("Horizontal", 21, 2, 24, 2),
    Sketcher.Constraint("Horizontal", 23, 2, 26, 2),
    Sketcher.Constraint("Horizontal", 17, 2, 28, 2),
    Sketcher.Constraint("Horizontal", 19, 2, 30, 2),
    Sketcher.Constraint("Vertical", 3, 2, 4, 2),
    Sketcher.Constraint("Vertical", 2, 2, 5, 2),
    Sketcher.Constraint("Vertical", 11, 2, 12, 2),
    Sketcher.Constraint("Vertical", 10, 2, 13, 2),
    Sketcher.Constraint("Vertical", 19, 2, 20, 2),
    Sketcher.Constraint("Vertical", 18, 2, 21, 2),
    Sketcher.Constraint("Vertical", 27, 2, 28, 2),
    Sketcher.Constraint("Vertical", 26, 2, 29, 2),
    Sketcher.Constraint("Equal", 7, 9),
    Sketcher.Constraint("Equal", 23, 25),
    Sketcher.Constraint("Equal", 31, 0),
    Sketcher.Constraint("Equal", 2, 4),
    Sketcher.Constraint("Equal", 15, 16),
    Sketcher.Constraint("Equal", 18, 20),
    Sketcher.Constraint("DistanceX", 1, 2, 1, 1, 20.0),
    Sketcher.Constraint("DistanceX", 17, 2, 17, 1, 2.2),
    Sketcher.Constraint("DistanceY", 4, 2, 3, 2, 204.0),
    Sketcher.Constraint("DistanceX", 8, 2, 5, 2, 99.8),
    Sketcher.Constraint("DistanceX", 7, 2, 16, 2, 32.1),
    Sketcher.Constraint("DistanceY", 7, 2, 16, 2, 29.9),
    Sketcher.Constraint("DistanceY", 20, 2, 0, 2, 49.9),
    Sketcher.Constraint("DistanceX", 24, 2, 13, 2, 29.9),
    Sketcher.Constraint("DistanceX", -1, 1, 0, 2, 783.642691),
    Sketcher.Constraint("DistanceY", -1, 1, 0, 2, 1030.778191),
])
pocket2 = doc.addObject("PartDesign::Pocket", "Pocket001")
body.addObject(pocket2)
pocket2.Profile = sketch5
pocket2.Type = "ThroughAll"
pocket2.Reversed = True

# Sketch on XY plane
sketch6 = doc.addObject("Sketcher::SketchObject", "Sketch005")
body.addObject(sketch6)
sketch6.AttachmentSupport = (doc.XY_Plane, [""])
sketch6.MapMode = "FlatFace"
sketch6.AttachmentOffset = App.Placement(V(0, 0, 1358.724356), App.Rotation())
sketch6.addGeometry([
    Part.LineSegment(V(597.642691, 1047.078191, 0), V(597.642691, 814.878191, 0)),  # 0
    Part.LineSegment(V(597.642691, 814.878191, 0), V(829.842691, 814.878191, 0)),  # 1
    Part.LineSegment(V(829.842691, 814.878191, 0), V(829.842691, 1047.078191, 0)),  # 2
    Part.LineSegment(V(829.842691, 1047.078191, 0), V(597.642691, 1047.078191, 0)),  # 3
    Part.LineSegment(V(826.842691, 817.878191, 0), V(600.642691, 817.878191, 0)),  # 4
    Part.LineSegment(V(600.642691, 817.878191, 0), V(600.642691, 1044.078191, 0)),  # 5
    Part.LineSegment(V(600.642691, 1044.078191, 0), V(826.842691, 1044.078191, 0)),  # 6
    Part.LineSegment(V(826.842691, 1044.078191, 0), V(826.842691, 817.878191, 0)),  # 7
], False)
sketch6.addConstraint([
    Sketcher.Constraint("Coincident", 0, 2, 1, 1),
    Sketcher.Constraint("Coincident", 1, 2, 2, 1),
    Sketcher.Constraint("Coincident", 2, 2, 3, 1),
    Sketcher.Constraint("Coincident", 3, 2, 0, 1),
    Sketcher.Constraint("Coincident", 4, 2, 5, 1),
    Sketcher.Constraint("Coincident", 5, 2, 6, 1),
    Sketcher.Constraint("Coincident", 6, 2, 7, 1),
    Sketcher.Constraint("Coincident", 7, 2, 4, 1),
    Sketcher.Constraint("Vertical", 0),
    Sketcher.Constraint("Horizontal", 1),
    Sketcher.Constraint("Vertical", 2),
    Sketcher.Constraint("Horizontal", 3),
    Sketcher.Constraint("Horizontal", 4),
    Sketcher.Constraint("Vertical", 5),
    Sketcher.Constraint("Horizontal", 6),
    Sketcher.Constraint("Vertical", 7),
    Sketcher.Constraint("Equal", 3, 0),
    Sketcher.Constraint("Equal", 6, 5),
    Sketcher.Constraint("DistanceX", 1, 1, 1, 2, 232.2),
    Sketcher.Constraint("DistanceX", 4, 2, 4, 1, 226.2),
    Sketcher.Constraint("DistanceX", 0, 2, 4, 2, 3.0),
    Sketcher.Constraint("DistanceY", 0, 2, 4, 2, 3.0),
    Sketcher.Constraint("DistanceX", -1, 1, 0, 2, 597.642691),
    Sketcher.Constraint("DistanceY", -1, 1, 0, 2, 814.878191),
])
pad4 = doc.addObject("PartDesign::Pad", "Pad003")
body.addObject(pad4)
pad4.Profile = sketch6
pad4.Length = 8
pad4.Reversed = True

# Sketch on XY plane
sketch7 = doc.addObject("Sketcher::SketchObject", "Sketch006")
body.addObject(sketch7)
sketch7.AttachmentSupport = (doc.XY_Plane, [""])
sketch7.MapMode = "FlatFace"
sketch7.AttachmentOffset = App.Placement(V(0, 0, 1355.724356), App.Rotation())
sketch7.addGeometry([
    Part.LineSegment(V(703.742691, 940.978191, 0), V(703.742691, 920.978191, 0)),
    Part.LineSegment(V(703.742691, 920.978191, 0), V(723.742691, 920.978191, 0)),
    Part.LineSegment(V(723.742691, 920.978191, 0), V(723.742691, 940.978191, 0)),
    Part.LineSegment(V(723.742691, 940.978191, 0), V(703.742691, 940.978191, 0)),
], False)
sketch7.addConstraint([
    Sketcher.Constraint("Coincident", 0, 2, 1, 1),
    Sketcher.Constraint("Coincident", 1, 2, 2, 1),
    Sketcher.Constraint("Coincident", 2, 2, 3, 1),
    Sketcher.Constraint("Coincident", 3, 2, 0, 1),
    Sketcher.Constraint("Vertical", 0),
    Sketcher.Constraint("Horizontal", 1),
    Sketcher.Constraint("Vertical", 2),
    Sketcher.Constraint("Horizontal", 3),
    Sketcher.Constraint("Equal", 3, 0),
    Sketcher.Constraint("DistanceX", 1, 1, 1, 2, 20.0),
    Sketcher.Constraint("DistanceX", -1, 1, 0, 2, 703.742691),
    Sketcher.Constraint("DistanceY", -1, 1, 0, 2, 920.978191),
])
pad5 = doc.addObject("PartDesign::Pad", "Pad004")
body.addObject(pad5)
pad5.Profile = sketch7
pad5.Length = 20
pad5.Reversed = True

# Sketch on XY plane
sketch8 = doc.addObject("Sketcher::SketchObject", "Sketch007")
body.addObject(sketch8)
sketch8.AttachmentSupport = (doc.XY_Plane, [""])
sketch8.MapMode = "FlatFace"
sketch8.AttachmentOffset = App.Placement(V(0, 0, 1355.724356), App.Rotation())
sketch8.addGeometry(Part.Circle(V(713.742691, 930.978191, 0), V(0, 0, 1), 4), False)
sketch8.addConstraint([
    Sketcher.Constraint("Diameter", 0, 8.0),
    Sketcher.Constraint("DistanceX", -1, 1, 0, 3, 713.742691),
    Sketcher.Constraint("DistanceY", -1, 1, 0, 3, 930.978191),
])
pocket3 = doc.addObject("PartDesign::Pocket", "Pocket002")
body.addObject(pocket3)
pocket3.Profile = sketch8
pocket3.Type = "ThroughAll"
doc.recompute()

fillet = doc.addObject("PartDesign::Fillet", "Fillet")
body.addObject(fillet)
fillet.Base = (pocket3, edges_at(pocket3, [(709.743, 930.978, 1355.724)]))
fillet.Radius = 2
doc.recompute()

fillet2 = doc.addObject("PartDesign::Fillet", "Fillet001")
body.addObject(fillet2)
fillet2.Base = (fillet, edges_at(fillet, [
    (703.743, 940.978, 1347.224),
    (723.743, 940.978, 1347.224),
    (723.743, 920.978, 1347.224),
    (703.743, 920.978, 1347.224),
]))
fillet2.Radius = 1

# Sketch on XY plane
sketch9 = doc.addObject("Sketcher::SketchObject", "Sketch008")
body.addObject(sketch9)
sketch9.AttachmentSupport = (doc.XY_Plane, [""])
sketch9.MapMode = "FlatFace"
sketch9.AttachmentOffset = App.Placement(V(0, 0, 1350.724356), App.Rotation())
sketch9.addGeometry([
    Part.LineSegment(V(823.992691, 1041.228191, 0), V(823.992691, 820.728191, 0)),  # 0
    Part.LineSegment(V(823.992691, 820.728191, 0), V(603.492691, 820.728191, 0)),  # 1
    Part.LineSegment(V(603.492691, 820.728191, 0), V(603.492691, 1041.228191, 0)),  # 2
    Part.LineSegment(V(603.492691, 1041.228191, 0), V(823.992691, 1041.228191, 0)),  # 3
    Part.LineSegment(V(613.942691, 831.178191, 0), V(813.542691, 831.178191, 0)),  # 4
    Part.LineSegment(V(813.542691, 831.178191, 0), V(813.542691, 1030.778191, 0)),  # 5
    Part.LineSegment(V(813.542691, 1030.778191, 0), V(613.942691, 1030.778191, 0)),  # 6
    Part.LineSegment(V(613.942691, 1030.778191, 0), V(613.942691, 831.178191, 0)),  # 7
], False)
sketch9.addConstraint([
    Sketcher.Constraint("Coincident", 0, 2, 1, 1),
    Sketcher.Constraint("Coincident", 1, 2, 2, 1),
    Sketcher.Constraint("Coincident", 2, 2, 3, 1),
    Sketcher.Constraint("Coincident", 3, 2, 0, 1),
    Sketcher.Constraint("Coincident", 4, 2, 5, 1),
    Sketcher.Constraint("Coincident", 5, 2, 6, 1),
    Sketcher.Constraint("Coincident", 6, 2, 7, 1),
    Sketcher.Constraint("Coincident", 7, 2, 4, 1),
    Sketcher.Constraint("Vertical", 0),
    Sketcher.Constraint("Horizontal", 1),
    Sketcher.Constraint("Vertical", 2),
    Sketcher.Constraint("Horizontal", 3),
    Sketcher.Constraint("Horizontal", 4),
    Sketcher.Constraint("Vertical", 5),
    Sketcher.Constraint("Horizontal", 6),
    Sketcher.Constraint("Vertical", 7),
    Sketcher.Constraint("Equal", 3, 0),
    Sketcher.Constraint("Equal", 6, 5),
    Sketcher.Constraint("DistanceX", 1, 2, 1, 1, 220.5),
    Sketcher.Constraint("DistanceX", 4, 1, 4, 2, 199.6),
    Sketcher.Constraint("DistanceX", 4, 2, 0, 2, 10.45),
    Sketcher.Constraint("DistanceY", 0, 2, 4, 2, 10.45),
    Sketcher.Constraint("DistanceX", -1, 1, 0, 2, 823.992691),
    Sketcher.Constraint("DistanceY", -1, 1, 0, 2, 820.728191),
])
pocket4 = doc.addObject("PartDesign::Pocket", "Pocket003")
body.addObject(pocket4)
pocket4.Profile = sketch9
pocket4.Length = 5
pocket4.Reversed = True
doc.recompute()

fillet3 = doc.addObject("PartDesign::Fillet", "Fillet002")
body.addObject(fillet3)
fillet3.Base = (pocket4, edges_at(pocket4, [
    (713.743, 820.728, 1350.724),
    (603.493, 930.978, 1350.724),
    (713.743, 1041.228, 1350.724),
    (823.993, 930.978, 1350.724),
]))
fillet3.Radius = 2

doc.recompute()
